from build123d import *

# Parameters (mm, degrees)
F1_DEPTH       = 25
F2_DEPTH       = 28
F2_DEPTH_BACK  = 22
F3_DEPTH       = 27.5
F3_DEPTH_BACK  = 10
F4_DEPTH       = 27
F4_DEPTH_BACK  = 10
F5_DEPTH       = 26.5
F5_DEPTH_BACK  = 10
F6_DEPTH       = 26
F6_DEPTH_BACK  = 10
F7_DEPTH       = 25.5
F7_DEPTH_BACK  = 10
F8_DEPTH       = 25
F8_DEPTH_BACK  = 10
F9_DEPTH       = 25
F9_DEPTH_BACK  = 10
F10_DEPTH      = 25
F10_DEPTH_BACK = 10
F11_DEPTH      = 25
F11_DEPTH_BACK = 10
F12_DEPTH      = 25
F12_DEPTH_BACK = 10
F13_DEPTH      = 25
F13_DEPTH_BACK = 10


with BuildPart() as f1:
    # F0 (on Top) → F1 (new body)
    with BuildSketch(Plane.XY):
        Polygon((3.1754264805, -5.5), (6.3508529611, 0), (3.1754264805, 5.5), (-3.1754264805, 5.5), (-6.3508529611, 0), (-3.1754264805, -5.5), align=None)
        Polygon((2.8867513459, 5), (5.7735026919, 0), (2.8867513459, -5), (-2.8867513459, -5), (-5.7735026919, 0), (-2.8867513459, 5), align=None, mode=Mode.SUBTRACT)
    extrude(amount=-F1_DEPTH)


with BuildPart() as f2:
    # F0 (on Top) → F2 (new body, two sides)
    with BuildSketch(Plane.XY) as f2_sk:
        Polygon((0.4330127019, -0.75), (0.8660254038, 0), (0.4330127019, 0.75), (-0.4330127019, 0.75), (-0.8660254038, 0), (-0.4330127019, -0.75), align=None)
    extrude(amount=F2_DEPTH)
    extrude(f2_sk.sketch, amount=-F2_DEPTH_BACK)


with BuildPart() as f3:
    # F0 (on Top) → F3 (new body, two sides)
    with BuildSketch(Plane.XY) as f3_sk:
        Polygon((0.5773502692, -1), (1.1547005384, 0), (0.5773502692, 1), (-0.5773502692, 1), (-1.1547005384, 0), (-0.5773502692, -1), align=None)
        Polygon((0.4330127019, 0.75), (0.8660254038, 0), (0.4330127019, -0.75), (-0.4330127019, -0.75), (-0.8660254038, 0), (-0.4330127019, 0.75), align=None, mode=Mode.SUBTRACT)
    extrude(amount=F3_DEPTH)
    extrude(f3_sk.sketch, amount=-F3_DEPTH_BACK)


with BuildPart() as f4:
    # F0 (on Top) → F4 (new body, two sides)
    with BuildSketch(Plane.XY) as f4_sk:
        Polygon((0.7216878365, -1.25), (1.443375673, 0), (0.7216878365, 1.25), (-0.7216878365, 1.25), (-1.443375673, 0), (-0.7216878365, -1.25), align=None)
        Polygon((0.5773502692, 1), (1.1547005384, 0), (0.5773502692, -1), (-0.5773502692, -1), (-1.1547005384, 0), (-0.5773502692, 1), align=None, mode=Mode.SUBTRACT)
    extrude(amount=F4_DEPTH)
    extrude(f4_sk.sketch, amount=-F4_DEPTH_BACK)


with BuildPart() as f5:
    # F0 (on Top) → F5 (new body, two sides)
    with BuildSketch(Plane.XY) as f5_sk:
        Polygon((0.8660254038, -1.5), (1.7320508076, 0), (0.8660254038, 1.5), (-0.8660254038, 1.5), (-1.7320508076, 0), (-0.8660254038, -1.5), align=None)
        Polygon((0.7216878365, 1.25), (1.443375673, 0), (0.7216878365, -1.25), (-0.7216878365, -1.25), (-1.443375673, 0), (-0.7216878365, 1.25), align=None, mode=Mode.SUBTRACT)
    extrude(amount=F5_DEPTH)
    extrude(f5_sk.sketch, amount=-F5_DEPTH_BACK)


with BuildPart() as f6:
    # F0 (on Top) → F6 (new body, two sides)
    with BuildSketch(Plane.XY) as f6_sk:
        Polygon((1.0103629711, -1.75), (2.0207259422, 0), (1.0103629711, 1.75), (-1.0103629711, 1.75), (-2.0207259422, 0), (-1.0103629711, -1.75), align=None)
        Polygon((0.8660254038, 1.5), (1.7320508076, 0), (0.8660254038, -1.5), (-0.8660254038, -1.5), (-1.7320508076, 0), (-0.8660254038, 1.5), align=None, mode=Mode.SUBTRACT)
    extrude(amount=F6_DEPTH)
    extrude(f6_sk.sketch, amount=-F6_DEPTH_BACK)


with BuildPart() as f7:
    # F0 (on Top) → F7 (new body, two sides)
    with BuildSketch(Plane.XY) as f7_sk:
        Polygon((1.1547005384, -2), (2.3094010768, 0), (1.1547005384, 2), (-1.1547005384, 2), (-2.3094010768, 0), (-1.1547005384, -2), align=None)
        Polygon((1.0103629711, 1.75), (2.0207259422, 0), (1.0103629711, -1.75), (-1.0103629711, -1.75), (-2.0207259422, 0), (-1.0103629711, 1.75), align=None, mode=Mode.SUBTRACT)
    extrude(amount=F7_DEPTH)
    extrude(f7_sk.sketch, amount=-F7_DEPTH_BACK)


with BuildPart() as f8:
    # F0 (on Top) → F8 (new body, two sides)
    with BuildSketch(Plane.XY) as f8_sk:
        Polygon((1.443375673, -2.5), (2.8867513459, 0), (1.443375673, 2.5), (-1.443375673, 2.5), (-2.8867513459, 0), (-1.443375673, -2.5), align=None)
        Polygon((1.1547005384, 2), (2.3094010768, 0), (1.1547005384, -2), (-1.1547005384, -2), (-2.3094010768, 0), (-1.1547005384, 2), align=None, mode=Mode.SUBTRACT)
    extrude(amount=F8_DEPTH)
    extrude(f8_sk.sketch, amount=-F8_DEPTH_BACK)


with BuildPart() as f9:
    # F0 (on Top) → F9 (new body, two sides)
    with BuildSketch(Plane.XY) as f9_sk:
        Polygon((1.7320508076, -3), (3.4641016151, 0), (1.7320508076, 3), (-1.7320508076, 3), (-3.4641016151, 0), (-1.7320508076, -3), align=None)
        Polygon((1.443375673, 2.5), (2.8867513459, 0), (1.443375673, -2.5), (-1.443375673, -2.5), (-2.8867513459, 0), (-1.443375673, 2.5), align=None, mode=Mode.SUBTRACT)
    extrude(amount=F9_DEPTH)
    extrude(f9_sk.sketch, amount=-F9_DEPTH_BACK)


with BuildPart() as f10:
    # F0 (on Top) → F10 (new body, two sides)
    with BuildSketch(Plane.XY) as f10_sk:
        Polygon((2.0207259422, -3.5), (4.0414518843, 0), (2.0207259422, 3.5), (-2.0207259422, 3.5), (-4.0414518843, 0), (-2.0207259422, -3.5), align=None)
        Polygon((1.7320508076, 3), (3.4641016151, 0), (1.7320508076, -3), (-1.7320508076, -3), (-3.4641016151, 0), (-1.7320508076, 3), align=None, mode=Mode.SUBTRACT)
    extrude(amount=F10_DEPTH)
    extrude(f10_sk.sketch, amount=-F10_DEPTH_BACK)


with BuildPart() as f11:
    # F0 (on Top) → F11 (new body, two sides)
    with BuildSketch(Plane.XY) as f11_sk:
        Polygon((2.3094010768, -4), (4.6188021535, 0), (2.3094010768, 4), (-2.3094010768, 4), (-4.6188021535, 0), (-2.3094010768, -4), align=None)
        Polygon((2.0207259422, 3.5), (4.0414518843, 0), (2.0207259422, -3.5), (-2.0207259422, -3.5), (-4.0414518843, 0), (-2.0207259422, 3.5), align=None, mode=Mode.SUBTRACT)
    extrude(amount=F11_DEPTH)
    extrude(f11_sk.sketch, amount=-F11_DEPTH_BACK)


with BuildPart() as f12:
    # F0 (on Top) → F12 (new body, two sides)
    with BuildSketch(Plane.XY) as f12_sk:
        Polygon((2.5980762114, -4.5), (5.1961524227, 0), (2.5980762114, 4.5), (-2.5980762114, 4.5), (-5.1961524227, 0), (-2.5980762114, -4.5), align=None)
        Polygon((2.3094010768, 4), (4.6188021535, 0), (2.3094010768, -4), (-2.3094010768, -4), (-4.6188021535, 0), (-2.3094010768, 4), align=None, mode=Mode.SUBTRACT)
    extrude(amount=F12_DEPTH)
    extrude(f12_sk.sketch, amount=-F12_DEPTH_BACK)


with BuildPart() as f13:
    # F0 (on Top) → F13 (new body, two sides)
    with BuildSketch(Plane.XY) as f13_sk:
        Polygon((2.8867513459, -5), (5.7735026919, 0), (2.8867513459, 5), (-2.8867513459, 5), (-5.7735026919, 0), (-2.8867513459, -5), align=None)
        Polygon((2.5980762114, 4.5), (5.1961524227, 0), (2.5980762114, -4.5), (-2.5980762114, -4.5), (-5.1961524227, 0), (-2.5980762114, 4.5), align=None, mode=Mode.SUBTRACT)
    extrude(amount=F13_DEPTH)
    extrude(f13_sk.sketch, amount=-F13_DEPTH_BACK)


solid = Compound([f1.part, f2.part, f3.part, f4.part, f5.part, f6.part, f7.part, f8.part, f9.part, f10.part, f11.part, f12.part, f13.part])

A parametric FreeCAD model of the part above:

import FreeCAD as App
import Part
import Sketcher
Q = App.Units.Quantity

doc = App.newDocument("Part")
body = doc.addObject("PartDesign::Body", "Body")

sketch1 = body.newObject("Sketcher::SketchObject", "Sketch")
sketch1.AttachmentSupport = (doc.getObject("XY_Plane"), [""])
sketch1.MapMode = "FlatFace"
sketch1.addGeometry([
    Part.LineSegment(App.Vector(3, -6, 0), App.Vector(6, 0, 0)),
    Part.LineSegment(App.Vector(6, 0, 0), App.Vector(3, 6, 0)),
    Part.LineSegment(App.Vector(3, 6, 0), App.Vector(-3, 6, 0)),
    Part.LineSegment(App.Vector(-3, 6, 0), App.Vector(-6, 0, 0)),
    Part.LineSegment(App.Vector(-6, 0, 0), App.Vector(-3, -6, 0)),
    Part.LineSegment(App.Vector(-3, -6, 0), App.Vector(3, -6, 0)),
    Part.LineSegment(App.Vector(-3, 5, 0), App.Vector(3, 5, 0)),
    Part.LineSegment(App.Vector(3, 5, 0), App.Vector(6, 0, 0)),
    Part.LineSegment(App.Vector(6, 0, 0), App.Vector(3, -5, 0)),
    Part.LineSegment(App.Vector(3, -5, 0), App.Vector(-3, -5, 0)),
    Part.LineSegment(App.Vector(-3, -5, 0), App.Vector(-6, 0, 0)),
    Part.LineSegment(App.Vector(-6, 0, 0), App.Vector(-3, 5, 0)),
], False)
sketch1.addConstraint([
    Sketcher.Constraint("Coincident", 0, 2, 1, 1),
    Sketcher.Constraint("Coincident", 1, 2, 2, 1),
    Sketcher.Constraint("Coincident", 2, 2, 3, 1),
    Sketcher.Constraint("Coincident", 3, 2, 4, 1),
    Sketcher.Constraint("Coincident", 4, 2, 5, 1),
    Sketcher.Constraint("Coincident", 5, 2, 0, 1),
    Sketcher.Constraint("Coincident", 6, 2, 7, 1),
    Sketcher.Constraint("Coincident", 7, 2, 8, 1),
    Sketcher.Constraint("Coincident", 8, 2, 9, 1),
    Sketcher.Constraint("Coincident", 9, 2, 10, 1),
    Sketcher.Constraint("Coincident", 10, 2, 11, 1),
    Sketcher.Constraint("Coincident", 11, 2, 6, 1),
    Sketcher.Constraint("Horizontal", 2),
    Sketcher.Constraint("Horizontal", 5),
    Sketcher.Constraint("Horizontal", 6),
    Sketcher.Constraint("Horizontal", 9),
    Sketcher.Constraint("Symmetric", 0, 2, 3, 2, -1, 1),
    Sketcher.Constraint("Symmetric", 1, 2, 4, 2, -1, 1),
    Sketcher.Constraint("Symmetric", 6, 2, 9, 2, -1, 1),
    Sketcher.Constraint("Symmetric", 7, 2, 10, 2, -1, 1),
    Sketcher.Constraint("PointOnObject", 0, 2, -1),
    Sketcher.Constraint("PointOnObject", 7, 2, -1),
    Sketcher.Constraint("Parallel", 0, 3),
    Sketcher.Constraint("Parallel", 4, 7),
    Sketcher.Constraint("Parallel", 3, 8),
    Sketcher.Constraint("Parallel", 8, 11),
    Sketcher.Constraint("Vertical", 2, 2, 4, 2),
    Sketcher.Constraint("Angle", 0, Q("60 deg")),
    Sketcher.Constraint("DistanceY", -1, 1, 6, 2, 5.0),
    Sketcher.Constraint("DistanceY", 4, 2, 2, 2, 11.0),
    Sketcher.Constraint("DistanceX", 6, 2, 0, 2, 3.464102),
    Sketcher.Constraint("DistanceX", 2, 2, 2, 1, 6.350853),
])
pad1 = body.newObject("PartDesign::Pad", "Pad")
pad1.Profile = sketch1
pad1.Length = 25
pad1.Reversed = True
body2 = doc.addObject("PartDesign::Body", "Body001")

sketch2 = body2.newObject("Sketcher::SketchObject", "Sketch001")
sketch2.AttachmentSupport = (doc.getObject("XY_Plane001"), [""])
sketch2.MapMode = "FlatFace"
sketch2.addGeometry([
    Part.LineSegment(App.Vector(0.4, -0.8, 0), App.Vector(0.9, 0, 0)),
    Part.LineSegment(App.Vector(0.9, 0, 0), App.Vector(0.4, 0.8, 0)),
    Part.LineSegment(App.Vector(0.4, 0.8, 0), App.Vector(-0.4, 0.8, 0)),
    Part.LineSegment(App.Vector(-0.4, 0.8, 0), App.Vector(-0.9, 0, 0)),
    Part.LineSegment(App.Vector(-0.9, 0, 0), App.Vector(-0.4, -0.8, 0)),
    Part.LineSegment(App.Vector(-0.4, -0.8, 0), App.Vector(0.4, -0.8, 0)),
], False)
sketch2.addConstraint([
    Sketcher.Constraint("Coincident", 0, 2, 1, 1),
    Sketcher.Constraint("Coincident", 1, 2, 2, 1),
    Sketcher.Constraint("Coincident", 2, 2, 3, 1),
    Sketcher.Constraint("Coincident", 3, 2, 4, 1),
    Sketcher.Constraint("Coincident", 4, 2, 5, 1),
    Sketcher.Constraint("Coincident", 5, 2, 0, 1),
    Sketcher.Constraint("Horizontal", 2),
    Sketcher.Constraint("Horizontal", 5),
    Sketcher.Constraint("Symmetric", 0, 2, 3, 2, -1, 1),
    Sketcher.Constraint("Symmetric", 1, 2, 4, 2, -1, 1),
    Sketcher.Constraint("PointOnObject", 0, 2, -1),
    Sketcher.Constraint("Parallel", 0, 3),
    Sketcher.Constraint("Vertical", 2, 2, 4, 2),
    Sketcher.Constraint("Angle", 0, Q("60 deg")),
    Sketcher.Constraint("DistanceY", 4, 2, 2, 2, 1.5),
    Sketcher.Constraint("DistanceX", 2, 2, 2, 1, 0.866025),
])
pad2 = body2.newObject("PartDesign::Pad", "Pad001")
pad2.Profile = sketch2
pad2.Type = "TwoLengths"
pad2.Length = 28
pad2.Length2 = 22
body3 = doc.addObject("PartDesign::Body", "Body002")

sketch3 = body3.newObject("Sketcher::SketchObject", "Sketch002")
sketch3.AttachmentSupport = (doc.getObject("XY_Plane002"), [""])
sketch3.MapMode = "FlatFace"
sketch3.addGeometry([
    Part.LineSegment(App.Vector(0.6, -1, 0), App.Vector(1.2, 0, 0)),
    Part.LineSegment(App.Vector(1.2, 0, 0), App.Vector(0.6, 1, 0)),
    Part.LineSegment(App.Vector(0.6, 1, 0), App.Vector(-0.6, 1, 0)),
    Part.LineSegment(App.Vector(-0.6, 1, 0), App.Vector(-1.2, 0, 0)),
    Part.LineSegment(App.Vector(-1.2, 0, 0), App.Vector(-0.6, -1, 0)),
    Part.LineSegment(App.Vector(-0.6, -1, 0), App.Vector(0.6, -1, 0)),
    Part.LineSegment(App.Vector(-0.4, 0.8, 0), App.Vector(0.4, 0.8, 0)),
    Part.LineSegment(App.Vector(0.4, 0.8, 0), App.Vector(0.9, 0, 0)),
    Part.LineSegment(App.Vector(0.9, 0, 0), App.Vector(0.4, -0.8, 0)),
    Part.LineSegment(App.Vector(0.4, -0.8, 0), App.Vector(-0.4, -0.8, 0)),
    Part.LineSegment(App.Vector(-0.4, -0.8, 0), App.Vector(-0.9, 0, 0)),
    Part.LineSegment(App.Vector(-0.9, 0, 0), App.Vector(-0.4, 0.8, 0)),
], False)
sketch3.addConstraint([
    Sketcher.Constraint("Coincident", 0, 2, 1, 1),
    Sketcher.Constraint("Coincident", 1, 2, 2, 1),
    Sketcher.Constraint("Coincident", 2, 2, 3, 1),
    Sketcher.Constraint("Coincident", 3, 2, 4, 1),
    Sketcher.Constraint("Coincident", 4, 2, 5, 1),
    Sketcher.Constraint("Coincident", 5, 2, 0, 1),
    Sketcher.Constraint("Coincident", 6, 2, 7, 1),
    Sketcher.Constraint("Coincident", 7, 2, 8, 1),
    Sketcher.Constraint("Coincident", 8, 2, 9, 1),
    Sketcher.Constraint("Coincident", 9, 2, 10, 1),
    Sketcher.Constraint("Coincident", 10, 2, 11, 1),
    Sketcher.Constraint("Coincident", 11, 2, 6, 1),
    Sketcher.Constraint("Horizontal", 2),
    Sketcher.Constraint("Horizontal", 5),
    Sketcher.Constraint("Horizontal", 6),
    Sketcher.Constraint("Horizontal", 9),
    Sketcher.Constraint("Symmetric", 0, 2, 3, 2, -1, 1),
    Sketcher.Constraint("Symmetric", 1, 2, 4, 2, -1, 1),
    Sketcher.Constraint("Symmetric", 6, 2, 9, 2, -1, 1),
    Sketcher.Constraint("Symmetric", 7, 2, 10, 2, -1, 1),
    Sketcher.Constraint("PointOnObject", 0, 2, -1),
    Sketcher.Constraint("PointOnObject", 7, 2, -1),
    Sketcher.Constraint("Parallel", 0, 3),
    Sketcher.Constraint("Parallel", 4, 7),
    Sketcher.Constraint("Parallel", 3, 8),
    Sketcher.Constraint("Parallel", 8, 11),
    Sketcher.Constraint("Vertical", 2, 2, 4, 2),
    Sketcher.Constraint("Angle", 0, Q("60 deg")),
    Sketcher.Constraint("DistanceY", -1, 1, 1, 2, 1.0),
    Sketcher.Constraint("DistanceY", 8, 2, 6, 2, 1.5),
    Sketcher.Constraint("DistanceX", 2, 2, 2, 1, 1.154701),
    Sketcher.Constraint("DistanceX", 6, 1, 6, 2, 0.866025),
])
pad3 = body3.newObject("PartDesign::Pad", "Pad002")
pad3.Profile = sketch3
pad3.Type = "TwoLengths"
pad3.Length = 27.5
pad3.Length2 = 10
body4 = doc.addObject("PartDesign::Body", "Body003")

sketch4 = body4.newObject("Sketcher::SketchObject", "Sketch003")
sketch4.AttachmentSupport = (doc.getObject("XY_Plane003"), [""])
sketch4.MapMode = "FlatFace"
sketch4.addGeometry([
    Part.LineSegment(App.Vector(0.7, -1.2, 0), App.Vector(1.4, 0, 0)),
    Part.LineSegment(App.Vector(1.4, 0, 0), App.Vector(0.7, 1.2, 0)),
    Part.LineSegment(App.Vector(0.7, 1.2, 0), App.Vector(-0.7, 1.2, 0)),
    Part.LineSegment(App.Vector(-0.7, 1.2, 0), App.Vector(-1.4, 0, 0)),
    Part.LineSegment(App.Vector(-1.4, 0, 0), App.Vector(-0.7, -1.2, 0)),
    Part.LineSegment(App.Vector(-0.7, -1.2, 0), App.Vector(0.7, -1.2, 0)),
    Part.LineSegment(App.Vector(-0.6, 1, 0), App.Vector(0.6, 1, 0)),
    Part.LineSegment(App.Vector(0.6, 1, 0), App.Vector(1.2, 0, 0)),
    Part.LineSegment(App.Vector(1.2, 0, 0), App.Vector(0.6, -1, 0)),
    Part.LineSegment(App.Vector(0.6, -1, 0), App.Vector(-0.6, -1, 0)),
    Part.LineSegment(App.Vector(-0.6, -1, 0), App.Vector(-1.2, 0, 0)),
    Part.LineSegment(App.Vector(-1.2, 0, 0), App.Vector(-0.6, 1, 0)),
], False)
sketch4.addConstraint([
    Sketcher.Constraint("Coincident", 0, 2, 1, 1),
    Sketcher.Constraint("Coincident", 1, 2, 2, 1),
    Sketcher.Constraint("Coincident", 2, 2, 3, 1),
    Sketcher.Constraint("Coincident", 3, 2, 4, 1),
    Sketcher.Constraint("Coincident", 4, 2, 5, 1),
    Sketcher.Constraint("Coincident", 5, 2, 0, 1),
    Sketcher.Constraint("Coincident", 6, 2, 7, 1),
    Sketcher.Constraint("Coincident", 7, 2, 8, 1),
    Sketcher.Constraint("Coincident", 8, 2, 9, 1),
    Sketcher.Constraint("Coincident", 9, 2, 10, 1),
    Sketcher.Constraint("Coincident", 10, 2, 11, 1),
    Sketcher.Constraint("Coincident", 11, 2, 6, 1),
    Sketcher.Constraint("Horizontal", 2),
    Sketcher.Constraint("Horizontal", 5),
    Sketcher.Constraint("Horizontal", 6),
    Sketcher.Constraint("Horizontal", 9),
    Sketcher.Constraint("Symmetric", 0, 2, 3, 2, -1, 1),
    Sketcher.Constraint("Symmetric", 1, 2, 4, 2, -1, 1),
    Sketcher.Constraint("Symmetric", 6, 2, 9, 2, -1, 1),
    Sketcher.Constraint("Symmetric", 7, 2, 10, 2, -1, 1),
    Sketcher.Constraint("PointOnObject", 0, 2, -1),
    Sketcher.Constraint("PointOnObject", 7, 2, -1),
    Sketcher.Constraint("Parallel", 0, 3),
    Sketcher.Constraint("Parallel", 4, 7),
    Sketcher.Constraint("Parallel", 3, 8),
    Sketcher.Constraint("Parallel", 8, 11),
    Sketcher.Constraint("Vertical", 2, 2, 4, 2),
    Sketcher.Constraint("Angle", 0, Q("60 deg")),
    Sketcher.Constraint("DistanceY", -1, 1, 6, 2, 1.0),
    Sketcher.Constraint("DistanceY", 4, 2, 2, 2, 2.5),
    Sketcher.Constraint("DistanceX", 6, 1, 6, 2, 1.154701),
    Sketcher.Constraint("DistanceX", 2, 2, 2, 1, 1.443376),
])
pad4 = body4.newObject("PartDesign::Pad", "Pad003")
pad4.Profile = sketch4
pad4.Type = "TwoLengths"
pad4.Length = 27
pad4.Length2 = 10
body5 = doc.addObject("PartDesign::Body", "Body004")

sketch5 = body5.newObject("Sketcher::SketchObject", "Sketch004")
sketch5.AttachmentSupport = (doc.getObject("XY_Plane004"), [""])
sketch5.MapMode = "FlatFace"
sketch5.addGeometry([
    Part.LineSegment(App.Vector(0.9, -1.5, 0), App.Vector(1.7, 0, 0)),
    Part.LineSegment(App.Vector(1.7, 0, 0), App.Vector(0.9, 1.5, 0)),
    Part.LineSegment(App.Vector(0.9, 1.5, 0), App.Vector(-0.9, 1.5, 0)),
    Part.LineSegment(App.Vector(-0.9, 1.5, 0), App.Vector(-1.7, 0, 0)),
    Part.LineSegment(App.Vector(-1.7, 0, 0), App.Vector(-0.9, -1.5, 0)),
    Part.LineSegment(App.Vector(-0.9, -1.5, 0), App.Vector(0.9, -1.5, 0)),
    Part.LineSegment(App.Vector(-0.7, 1.2, 0), App.Vector(0.7, 1.2, 0)),
    Part.LineSegment(App.Vector(0.7, 1.2, 0), App.Vector(1.4, 0, 0)),
    Part.LineSegment(App.Vector(1.4, 0, 0), App.Vector(0.7, -1.2, 0)),
    Part.LineSegment(App.Vector(0.7, -1.2, 0), App.Vector(-0.7, -1.2, 0)),
    Part.LineSegment(App.Vector(-0.7, -1.2, 0), App.Vector(-1.4, 0, 0)),
    Part.LineSegment(App.Vector(-1.4, 0, 0), App.Vector(-0.7, 1.2, 0)),
], False)
sketch5.addConstraint([
    Sketcher.Constraint("Coincident", 0, 2, 1, 1),
    Sketcher.Constraint("Coincident", 1, 2, 2, 1),
    Sketcher.Constraint("Coincident", 2, 2, 3, 1),
    Sketcher.Constraint("Coincident", 3, 2, 4, 1),
    Sketcher.Constraint("Coincident", 4, 2, 5, 1),
    Sketcher.Constraint("Coincident", 5, 2, 0, 1),
    Sketcher.Constraint("Coincident", 6, 2, 7, 1),
    Sketcher.Constraint("Coincident", 7, 2, 8, 1),
    Sketcher.Constraint("Coincident", 8, 2, 9, 1),
    Sketcher.Constraint("Coincident", 9, 2, 10, 1),
    Sketcher.Constraint("Coincident", 10, 2, 11, 1),
    Sketcher.Constraint("Coincident", 11, 2, 6, 1),
    Sketcher.Constraint("Horizontal", 2),
    Sketcher.Constraint("Horizontal", 5),
    Sketcher.Constraint("Horizontal", 6),
    Sketcher.Constraint("Horizontal", 9),
    Sketcher.Constraint("Symmetric", 0, 2, 3, 2, -1, 1),
    Sketcher.Constraint("Symmetric", 1, 2, 4, 2, -1, 1),
    Sketcher.Constraint("Symmetric", 6, 2, 9, 2, -1, 1),
    Sketcher.Constraint("Symmetric", 7, 2, 10, 2, -1, 1),
    Sketcher.Constraint("PointOnObject", 0, 2, -1),
    Sketcher.Constraint("PointOnObject", 7, 2, -1),
    Sketcher.Constraint("Parallel", 0, 3),
    Sketcher.Constraint("Parallel", 4, 7),
    Sketcher.Constraint("Parallel", 3, 8),
    Sketcher.Constraint("Parallel", 8, 11),
    Sketcher.Constraint("Vertical", 2, 2, 4, 2),
    Sketcher.Constraint("Angle", 0, Q("60 deg")),
    Sketcher.Constraint("DistanceY", 4, 2, 2, 2, 3.0),
    Sketcher.Constraint("DistanceY", 8, 2, 6, 2, 2.5),
    Sketcher.Constraint("DistanceX", 2, 2, 2, 1, 1.732051),
    Sketcher.Constraint("DistanceX", 2, 2, 7, 2, 2.309401),
])
pad5 = body5.newObject("PartDesign::Pad", "Pad004")
pad5.Profile = sketch5
pad5.Type = "TwoLengths"
pad5.Length = 26.5
pad5.Length2 = 10
body6 = doc.addObject("PartDesign::Body", "Body005")

sketch6 = body6.newObject("Sketcher::SketchObject", "Sketch005")
sketch6.AttachmentSupport = (doc.getObject("XY_Plane005"), [""])
sketch6.MapMode = "FlatFace"
sketch6.addGeometry([
    Part.LineSegment(App.Vector(1, -1.8, 0), App.Vector(2, 0, 0)),
    Part.LineSegment(App.Vector(2, 0, 0), App.Vector(1, 1.8, 0)),
    Part.LineSegment(App.Vector(1, 1.8, 0), App.Vector(-1, 1.8, 0)),
    Part.LineSegment(App.Vector(-1, 1.8, 0), App.Vector(-2, 0, 0)),
    Part.LineSegment(App.Vector(-2, 0, 0), App.Vector(-1, -1.8, 0)),
    Part.LineSegment(App.Vector(-1, -1.8, 0), App.Vector(1, -1.8, 0)),
    Part.LineSegment(App.Vector(-0.9, 1.5, 0), App.Vector(0.9, 1.5, 0)),
    Part.LineSegment(App.Vector(0.9, 1.5, 0), App.Vector(1.7, 0, 0)),
    Part.LineSegment(App.Vector(1.7, 0, 0), App.Vector(0.9, -1.5, 0)),
    Part.LineSegment(App.Vector(0.9, -1.5, 0), App.Vector(-0.9, -1.5, 0)),
    Part.LineSegment(App.Vector(-0.9, -1.5, 0), App.Vector(-1.7, 0, 0)),
    Part.LineSegment(App.Vector(-1.7, 0, 0), App.Vector(-0.9, 1.5, 0)),
], False)
sketch6.addConstraint([
    Sketcher.Constraint("Coincident", 0, 2, 1, 1),
    Sketcher.Constraint("Coincident", 1, 2, 2, 1),
    Sketcher.Constraint("Coincident", 2, 2, 3, 1),
    Sketcher.Constraint("Coincident", 3, 2, 4, 1),
    Sketcher.Constraint("Coincident", 4, 2, 5, 1),
    Sketcher.Constraint("Coincident", 5, 2, 0, 1),
    Sketcher.Constraint("Coincident", 6, 2, 7, 1),
    Sketcher.Constraint("Coincident", 7, 2, 8, 1),
    Sketcher.Constraint("Coincident", 8, 2, 9, 1),
    Sketcher.Constraint("Coincident", 9, 2, 10, 1),
    Sketcher.Constraint("Coincident", 10, 2, 11, 1),
    Sketcher.Constraint("Coincident", 11, 2, 6, 1),
    Sketcher.Constraint("Horizontal", 2),
    Sketcher.Constraint("Horizontal", 5),
    Sketcher.Constraint("Horizontal", 6),
    Sketcher.Constraint("Horizontal", 9),
    Sketcher.Constraint("Symmetric", 0, 2, 3, 2, -1, 1),
    Sketcher.Constraint("Symmetric", 1, 2, 4, 2, -1, 1),
    Sketcher.Constraint("Symmetric", 6, 2, 9, 2, -1, 1),
    Sketcher.Constraint("Symmetric", 7, 2, 10, 2, -1, 1),
    Sketcher.Constraint("PointOnObject", 0, 2, -1),
    Sketcher.Constraint("PointOnObject", 7, 2, -1),
    Sketcher.Constraint("Parallel", 0, 3),
    Sketcher.Constraint("Parallel", 4, 7),
    Sketcher.Constraint("Parallel", 3, 8),
    Sketcher.Constraint("Parallel", 8, 11),
    Sketcher.Constraint("Vertical", 2, 2, 4, 2),
    Sketcher.Constraint("Angle", 0, Q("60 deg")),
    Sketcher.Constraint("DistanceY", 8, 2, 6, 2, 3.0),
    Sketcher.Constraint("DistanceY", 4, 2, 2, 2, 3.5),
    Sketcher.Constraint("DistanceX", 6, 1, 6, 2, 1.732051),
    Sketcher.Constraint("DistanceX", 6, 2, 0, 2, 1.154701),
])
pad6 = body6.newObject("PartDesign::Pad", "Pad005")
pad6.Profile = sketch6
pad6.Type = "TwoLengths"
pad6.Length = 26
pad6.Length2 = 10
body7 = doc.addObject("PartDesign::Body", "Body006")

sketch7 = body7.newObject("Sketcher::SketchObject", "Sketch006")
sketch7.AttachmentSupport = (doc.getObject("XY_Plane006"), [""])
sketch7.MapMode = "FlatFace"
sketch7.addGeometry([
    Part.LineSegment(App.Vector(1.2, -2, 0), App.Vector(2.3, 0, 0)),
    Part.LineSegment(App.Vector(2.3, 0, 0), App.Vector(1.2, 2, 0)),
    Part.LineSegment(App.Vector(1.2, 2, 0), App.Vector(-1.2, 2, 0)),
    Part.LineSegment(App.Vector(-1.2, 2, 0), App.Vector(-2.3, 0, 0)),
    Part.LineSegment(App.Vector(-2.3, 0, 0), App.Vector(-1.2, -2, 0)),
    Part.LineSegment(App.Vector(-1.2, -2, 0), App.Vector(1.2, -2, 0)),
    Part.LineSegment(App.Vector(-1, 1.8, 0), App.Vector(1, 1.8, 0)),
    Part.LineSegment(App.Vector(1, 1.8, 0), App.Vector(2, 0, 0)),
    Part.LineSegment(App.Vector(2, 0, 0), App.Vector(1, -1.8, 0)),
    Part.LineSegment(App.Vector(1, -1.8, 0), App.Vector(-1, -1.8, 0)),
    Part.LineSegment(App.Vector(-1, -1.8, 0), App.Vector(-2, 0, 0)),
    Part.LineSegment(App.Vector(-2, 0, 0), App.Vector(-1, 1.8, 0)),
], False)
sketch7.addConstraint([
    Sketcher.Constraint("Coincident", 0, 2, 1, 1),
    Sketcher.Constraint("Coincident", 1, 2, 2, 1),
    Sketcher.Constraint("Coincident", 2, 2, 3, 1),
    Sketcher.Constraint("Coincident", 3, 2, 4, 1),
    Sketcher.Constraint("Coincident", 4, 2, 5, 1),
    Sketcher.Constraint("Coincident", 5, 2, 0, 1),
    Sketcher.Constraint("Coincident", 6, 2, 7, 1),
    Sketcher.Constraint("Coincident", 7, 2, 8, 1),
    Sketcher.Constraint("Coincident", 8, 2, 9, 1),
    Sketcher.Constraint("Coincident", 9, 2, 10, 1),
    Sketcher.Constraint("Coincident", 10, 2, 11, 1),
    Sketcher.Constraint("Coincident", 11, 2, 6, 1),
    Sketcher.Constraint("Horizontal", 2),
    Sketcher.Constraint("Horizontal", 5),
    Sketcher.Constraint("Horizontal", 6),
    Sketcher.Constraint("Horizontal", 9),
    Sketcher.Constraint("Symmetric", 0, 2, 3, 2, -1, 1),
    Sketcher.Constraint("Symmetric", 1, 2, 4, 2, -1, 1),
    Sketcher.Constraint("Symmetric", 6, 2, 9, 2, -1, 1),
    Sketcher.Constraint("Symmetric", 7, 2, 10, 2, -1, 1),
    Sketcher.Constraint("PointOnObject", 0, 2, -1),
    Sketcher.Constraint("PointOnObject", 7, 2, -1),
    Sketcher.Constraint("Parallel", 0, 3),
    Sketcher.Constraint("Parallel", 4, 7),
    Sketcher.Constraint("Parallel", 3, 8),
    Sketcher.Constraint("Parallel", 8, 11),
    Sketcher.Constraint("Vertical", 2, 2, 4, 2),
    Sketcher.Constraint("Angle", 0, Q("60 deg")),
    Sketcher.Constraint("DistanceY", -1, 1, 1, 2, 2.0),
    Sketcher.Constraint("DistanceY", 8, 2, 6, 2, 3.5),
    Sketcher.Constraint("DistanceX", 2, 2, 2, 1, 2.309401),
    Sketcher.Constraint("DistanceX", 6, 1, 6, 2, 2.020726),
])
pad7 = body7.newObject("PartDesign::Pad", "Pad006")
pad7.Profile = sketch7
pad7.Type = "TwoLengths"
pad7.Length = 25.5
pad7.Length2 = 10
body8 = doc.addObject("PartDesign::Body", "Body007")

sketch8 = body8.newObject("Sketcher::SketchObject", "Sketch007")
sketch8.AttachmentSupport = (doc.getObject("XY_Plane007"), [""])
sketch8.MapMode = "FlatFace"
sketch8.addGeometry([
    Part.LineSegment(App.Vector(1.4, -2.5, 0), App.Vector(2.9, 0, 0)),
    Part.LineSegment(App.Vector(2.9, 0, 0), App.Vector(1.4, 2.5, 0)),
    Part.LineSegment(App.Vector(1.4, 2.5, 0), App.Vector(-1.4, 2.5, 0)),
    Part.LineSegment(App.Vector(-1.4, 2.5, 0), App.Vector(-2.9, 0, 0)),
    Part.LineSegment(App.Vector(-2.9, 0, 0), App.Vector(-1.4, -2.5, 0)),
    Part.LineSegment(App.Vector(-1.4, -2.5, 0), App.Vector(1.4, -2.5, 0)),
    Part.LineSegment(App.Vector(-1.2, 2, 0), App.Vector(1.2, 2, 0)),
    Part.LineSegment(App.Vector(1.2, 2, 0), App.Vector(2.3, 0, 0)),
    Part.LineSegment(App.Vector(2.3, 0, 0), App.Vector(1.2, -2, 0)),
    Part.LineSegment(App.Vector(1.2, -2, 0), App.Vector(-1.2, -2, 0)),
    Part.LineSegment(App.Vector(-1.2, -2, 0), App.Vector(-2.3, 0, 0)),
    Part.LineSegment(App.Vector(-2.3, 0, 0), App.Vector(-1.2, 2, 0)),
], False)
sketch8.addConstraint([
    Sketcher.Constraint("Coincident", 0, 2, 1, 1),
    Sketcher.Constraint("Coincident", 1, 2, 2, 1),
    Sketcher.Constraint("Coincident", 2, 2, 3, 1),
    Sketcher.Constraint("Coincident", 3, 2, 4, 1),
    Sketcher.Constraint("Coincident", 4, 2, 5, 1),
    Sketcher.Constraint("Coincident", 5, 2, 0, 1),
    Sketcher.Constraint("Coincident", 6, 2, 7, 1),
    Sketcher.Constraint("Coincident", 7, 2, 8, 1),
    Sketcher.Constraint("Coincident", 8, 2, 9, 1),
    Sketcher.Constraint("Coincident", 9, 2, 10, 1),
    Sketcher.Constraint("Coincident", 10, 2, 11, 1),
    Sketcher.Constraint("Coincident", 11, 2, 6, 1),
    Sketcher.Constraint("Horizontal", 2),
    Sketcher.Constraint("Horizontal", 5),
    Sketcher.Constraint("Horizontal", 6),
    Sketcher.Constraint("Horizontal", 9),
    Sketcher.Constraint("Symmetric", 0, 2, 3, 2, -1, 1),
    Sketcher.Constraint("Symmetric", 1, 2, 4, 2, -1, 1),
    Sketcher.Constraint("Symmetric", 6, 2, 9, 2, -1, 1),
    Sketcher.Constraint("Symmetric", 7, 2, 10, 2, -1, 1),
    Sketcher.Constraint("PointOnObject", 0, 2, -1),
    Sketcher.Constraint("PointOnObject", 7, 2, -1),
    Sketcher.Constraint("Parallel", 0, 3),
    Sketcher.Constraint("Parallel", 4, 7),
    Sketcher.Constraint("Parallel", 3, 8),
    Sketcher.Constraint("Parallel", 8, 11),
    Sketcher.Constraint("Vertical", 2, 2, 4, 2),
    Sketcher.Constraint("Angle", 0, Q("60 deg")),
    Sketcher.Constraint("DistanceY", -1, 1, 6, 2, 2.0),
    Sketcher.Constraint("DistanceY", 4, 2, 2, 2, 5.0),
    Sketcher.Constraint("DistanceX", 6, 1, 6, 2, 2.309401),
    Sketcher.Constraint("DistanceX", 2, 2, 2, 1, 2.886751),
])
pad8 = body8.newObject("PartDesign::Pad", "Pad007")
pad8.Profile = sketch8
pad8.Type = "TwoLengths"
pad8.Length = 25
pad8.Length2 = 10
body9 = doc.addObject("PartDesign::Body", "Body008")

sketch9 = body9.newObject("Sketcher::SketchObject", "Sketch008")
sketch9.AttachmentSupport = (doc.getObject("XY_Plane008"), [""])
sketch9.MapMode = "FlatFace"
sketch9.addGeometry([
    Part.LineSegment(App.Vector(1.7, -3, 0), App.Vector(3.5, 0, 0)),
    Part.LineSegment(App.Vector(3.5, 0, 0), App.Vector(1.7, 3, 0)),
    Part.LineSegment(App.Vector(1.7, 3, 0), App.Vector(-1.7, 3, 0)),
    Part.LineSegment(App.Vector(-1.7, 3, 0), App.Vector(-3.5, 0, 0)),
    Part.LineSegment(App.Vector(-3.5, 0, 0), App.Vector(-1.7, -3, 0)),
    Part.LineSegment(App.Vector(-1.7, -3, 0), App.Vector(1.7, -3, 0)),
    Part.LineSegment(App.Vector(-1.4, 2.5, 0), App.Vector(1.4, 2.5, 0)),
    Part.LineSegment(App.Vector(1.4, 2.5, 0), App.Vector(2.9, 0, 0)),
    Part.LineSegment(App.Vector(2.9, 0, 0), App.Vector(1.4, -2.5, 0)),
    Part.LineSegment(App.Vector(1.4, -2.5, 0), App.Vector(-1.4, -2.5, 0)),
    Part.LineSegment(App.Vector(-1.4, -2.5, 0), App.Vector(-2.9, 0, 0)),
    Part.LineSegment(App.Vector(-2.9, 0, 0), App.Vector(-1.4, 2.5, 0)),
], False)
sketch9.addConstraint([
    Sketcher.Constraint("Coincident", 0, 2, 1, 1),
    Sketcher.Constraint("Coincident", 1, 2, 2, 1),
    Sketcher.Constraint("Coincident", 2, 2, 3, 1),
    Sketcher.Constraint("Coincident", 3, 2, 4, 1),
    Sketcher.Constraint("Coincident", 4, 2, 5, 1),
    Sketcher.Constraint("Coincident", 5, 2, 0, 1),
    Sketcher.Constraint("Coincident", 6, 2, 7, 1),
    Sketcher.Constraint("Coincident", 7, 2, 8, 1),
    Sketcher.Constraint("Coincident", 8, 2, 9, 1),
    Sketcher.Constraint("Coincident", 9, 2, 10, 1),
    Sketcher.Constraint("Coincident", 10, 2, 11, 1),
    Sketcher.Constraint("Coincident", 11, 2, 6, 1),
    Sketcher.Constraint("Horizontal", 2),
    Sketcher.Constraint("Horizontal", 5),
    Sketcher.Constraint("Horizontal", 6),
    Sketcher.Constraint("Horizontal", 9),
    Sketcher.Constraint("Symmetric", 0, 2, 3, 2, -1, 1),
    Sketcher.Constraint("Symmetric", 1, 2, 4, 2, -1, 1),
    Sketcher.Constraint("Symmetric", 6, 2, 9, 2, -1, 1),
    Sketcher.Constraint("Symmetric", 7, 2, 10, 2, -1, 1),
    Sketcher.Constraint("PointOnObject", 0, 2, -1),
    Sketcher.Constraint("PointOnObject", 7, 2, -1),
    Sketcher.Constraint("Parallel", 0, 3),
    Sketcher.Constraint("Parallel", 4, 7),
    Sketcher.Constraint("Parallel", 3, 8),
    Sketcher.Constraint("Parallel", 8, 11),
    Sketcher.Constraint("Vertical", 2, 2, 4, 2),
    Sketcher.Constraint("Angle", 0, Q("60 deg")),
    Sketcher.Constraint("DistanceY", -1, 1, 1, 2, 3.0),
    Sketcher.Constraint("DistanceY", 8, 2, 6, 2, 5.0),
    Sketcher.Constraint("DistanceX", 2, 2, 2, 1, 3.464102),
    Sketcher.Constraint("DistanceX", 6, 1, 6, 2, 2.886751),
])
pad9 = body9.newObject("PartDesign::Pad", "Pad008")
pad9.Profile = sketch9
pad9.Type = "TwoLengths"
pad9.Length = 25
pad9.Length2 = 10
body10 = doc.addObject("PartDesign::Body", "Body009")

sketch10 = body10.newObject("Sketcher::SketchObject", "Sketch009")
sketch10.AttachmentSupport = (doc.getObject("XY_Plane009"), [""])
sketch10.MapMode = "FlatFace"
sketch10.addGeometry([
    Part.LineSegment(App.Vector(2, -3.5, 0), App.Vector(4, 0, 0)),
    Part.LineSegment(App.Vector(4, 0, 0), App.Vector(2, 3.5, 0)),
    Part.LineSegment(App.Vector(2, 3.5, 0), App.Vector(-2, 3.5, 0)),
    Part.LineSegment(App.Vector(-2, 3.5, 0), App.Vector(-4, 0, 0)),
    Part.LineSegment(App.Vector(-4, 0, 0), App.Vector(-2, -3.5, 0)),
    Part.LineSegment(App.Vector(-2, -3.5, 0), App.Vector(2, -3.5, 0)),
    Part.LineSegment(App.Vector(-1.7, 3, 0), App.Vector(1.7, 3, 0)),
    Part.LineSegment(App.Vector(1.7, 3, 0), App.Vector(3.5, 0, 0)),
    Part.LineSegment(App.Vector(3.5, 0, 0), App.Vector(1.7, -3, 0)),
    Part.LineSegment(App.Vector(1.7, -3, 0), App.Vector(-1.7, -3, 0)),
    Part.LineSegment(App.Vector(-1.7, -3, 0), App.Vector(-3.5, 0, 0)),
    Part.LineSegment(App.Vector(-3.5, 0, 0), App.Vector(-1.7, 3, 0)),
], False)
sketch10.addConstraint([
    Sketcher.Constraint("Coincident", 0, 2, 1, 1),
    Sketcher.Constraint("Coincident", 1, 2, 2, 1),
    Sketcher.Constraint("Coincident", 2, 2, 3, 1),
    Sketcher.Constraint("Coincident", 3, 2, 4, 1),
    Sketcher.Constraint("Coincident", 4, 2, 5, 1),
    Sketcher.Constraint("Coincident", 5, 2, 0, 1),
    Sketcher.Constraint("Coincident", 6, 2, 7, 1),
    Sketcher.Constraint("Coincident", 7, 2, 8, 1),
    Sketcher.Constraint("Coincident", 8, 2, 9, 1),
    Sketcher.Constraint("Coincident", 9, 2, 10, 1),
    Sketcher.Constraint("Coincident", 10, 2, 11, 1),
    Sketcher.Constraint("Coincident", 11, 2, 6, 1),
    Sketcher.Constraint("Horizontal", 2),
    Sketcher.Constraint("Horizontal", 5),
    Sketcher.Constraint("Horizontal", 6),
    Sketcher.Constraint("Horizontal", 9),
    Sketcher.Constraint("Symmetric", 0, 2, 3, 2, -1, 1),
    Sketcher.Constraint("Symmetric", 1, 2, 4, 2, -1, 1),
    Sketcher.Constraint("Symmetric", 6, 2, 9, 2, -1, 1),
    Sketcher.Constraint("Symmetric", 7, 2, 10, 2, -1, 1),
    Sketcher.Constraint("PointOnObject", 0, 2, -1),
    Sketcher.Constraint("PointOnObject", 7, 2, -1),
    Sketcher.Constraint("Parallel", 0, 3),
    Sketcher.Constraint("Parallel", 4, 7),
    Sketcher.Constraint("Parallel", 3, 8),
    Sketcher.Constraint("Parallel", 8, 11),
    Sketcher.Constraint("Vertical", 2, 2, 4, 2),
    Sketcher.Constraint("Angle", 0, Q("60 deg")),
    Sketcher.Constraint("DistanceY", -1, 1, 6, 2, 3.0),
    Sketcher.Constraint("DistanceY", 4, 2, 2, 2, 7.0),
    Sketcher.Constraint("DistanceX", 6, 1, 6, 2, 3.464102),
    Sketcher.Constraint("DistanceX", 2, 2, 2, 1, 4.041452),
])
pad10 = body10.newObject("PartDesign::Pad", "Pad009")
pad10.Profile = sketch10
pad10.Type = "TwoLengths"
pad10.Length = 25
pad10.Length2 = 10
body11 = doc.addObject("PartDesign::Body", "Body010")

sketch11 = body11.newObject("Sketcher::SketchObject", "Sketch010")
sketch11.AttachmentSupport = (doc.getObject("XY_Plane010"), [""])
sketch11.MapMode = "FlatFace"
sketch11.addGeometry([
    Part.LineSegment(App.Vector(2.3, -4, 0), App.Vector(4.6, 0, 0)),
    Part.LineSegment(App.Vector(4.6, 0, 0), App.Vector(2.3, 4, 0)),
    Part.LineSegment(App.Vector(2.3, 4, 0), App.Vector(-2.3, 4, 0)),
    Part.LineSegment(App.Vector(-2.3, 4, 0), App.Vector(-4.6, 0, 0)),
    Part.LineSegment(App.Vector(-4.6, 0, 0), App.Vector(-2.3, -4, 0)),
    Part.LineSegment(App.Vector(-2.3, -4, 0), App.Vector(2.3, -4, 0)),
    Part.LineSegment(App.Vector(-2, 3.5, 0), App.Vector(2, 3.5, 0)),
    Part.LineSegment(App.Vector(2, 3.5, 0), App.Vector(4, 0, 0)),
    Part.LineSegment(App.Vector(4, 0, 0), App.Vector(2, -3.5, 0)),
    Part.LineSegment(App.Vector(2, -3.5, 0), App.Vector(-2, -3.5, 0)),
    Part.LineSegment(App.Vector(-2, -3.5, 0), App.Vector(-4, 0, 0)),
    Part.LineSegment(App.Vector(-4, 0, 0), App.Vector(-2, 3.5, 0)),
], False)
sketch11.addConstraint([
    Sketcher.Constraint("Coincident", 0, 2, 1, 1),
    Sketcher.Constraint("Coincident", 1, 2, 2, 1),
    Sketcher.Constraint("Coincident", 2, 2, 3, 1),
    Sketcher.Constraint("Coincident", 3, 2, 4, 1),
    Sketcher.Constraint("Coincident", 4, 2, 5, 1),
    Sketcher.Constraint("Coincident", 5, 2, 0, 1),
    Sketcher.Constraint("Coincident", 6, 2, 7, 1),
    Sketcher.Constraint("Coincident", 7, 2, 8, 1),
    Sketcher.Constraint("Coincident", 8, 2, 9, 1),
    Sketcher.Constraint("Coincident", 9, 2, 10, 1),
    Sketcher.Constraint("Coincident", 10, 2, 11, 1),
    Sketcher.Constraint("Coincident", 11, 2, 6, 1),
    Sketcher.Constraint("Horizontal", 2),
    Sketcher.Constraint("Horizontal", 5),
    Sketcher.Constraint("Horizontal", 6),
    Sketcher.Constraint("Horizontal", 9),
    Sketcher.Constraint("Symmetric", 0, 2, 3, 2, -1, 1),
    Sketcher.Constraint("Symmetric", 1, 2, 4, 2, -1, 1),
    Sketcher.Constraint("Symmetric", 6, 2, 9, 2, -1, 1),
    Sketcher.Constraint("Symmetric", 7, 2, 10, 2, -1, 1),
    Sketcher.Constraint("PointOnObject", 0, 2, -1),
    Sketcher.Constraint("PointOnObject", 7, 2, -1),
    Sketcher.Constraint("Parallel", 0, 3),
    Sketcher.Constraint("Parallel", 4, 7),
    Sketcher.Constraint("Parallel", 3, 8),
    Sketcher.Constraint("Parallel", 8, 11),
    Sketcher.Constraint("Vertical", 2, 2, 4, 2),
    Sketcher.Constraint("Angle", 0, Q("60 deg")),
    Sketcher.Constraint("DistanceY", -1, 1, 1, 2, 4.0),
    Sketcher.Constraint("DistanceY", 8, 2, 6, 2, 7.0),
    Sketcher.Constraint("DistanceX", 6, 1, 6, 2, 4.041452),
    Sketcher.Constraint("DistanceX", -1, 1, 1, 2, 2.309401),
])
pad11 = body11.newObject("PartDesign::Pad", "Pad010")
pad11.Profile = sketch11
pad11.Type = "TwoLengths"
pad11.Length = 25
pad11.Length2 = 10
body12 = doc.addObject("PartDesign::Body", "Body011")

sketch12 = body12.newObject("Sketcher::SketchObject", "Sketch011")
sketch12.AttachmentSupport = (doc.getObject("XY_Plane011"), [""])
sketch12.MapMode = "FlatFace"
sketch12.addGeometry([
    Part.LineSegment(App.Vector(2.6, -4.5, 0), App.Vector(5.2, 0, 0)),
    Part.LineSegment(App.Vector(5.2, 0, 0), App.Vector(2.6, 4.5, 0)),
    Part.LineSegment(App.Vector(2.6, 4.5, 0), App.Vector(-2.6, 4.5, 0)),
    Part.LineSegment(App.Vector(-2.6, 4.5, 0), App.Vector(-5.2, 0, 0)),
    Part.LineSegment(App.Vector(-5.2, 0, 0), App.Vector(-2.6, -4.5, 0)),
    Part.LineSegment(App.Vector(-2.6, -4.5, 0), App.Vector(2.6, -4.5, 0)),
    Part.LineSegment(App.Vector(-2.3, 4, 0), App.Vector(2.3, 4, 0)),
    Part.LineSegment(App.Vector(2.3, 4, 0), App.Vector(4.6, 0, 0)),
    Part.LineSegment(App.Vector(4.6, 0, 0), App.Vector(2.3, -4, 0)),
    Part.LineSegment(App.Vector(2.3, -4, 0), App.Vector(-2.3, -4, 0)),
    Part.LineSegment(App.Vector(-2.3, -4, 0), App.Vector(-4.6, 0, 0)),
    Part.LineSegment(App.Vector(-4.6, 0, 0), App.Vector(-2.3, 4, 0)),
], False)
sketch12.addConstraint([
    Sketcher.Constraint("Coincident", 0, 2, 1, 1),
    Sketcher.Constraint("Coincident", 1, 2, 2, 1),
    Sketcher.Constraint("Coincident", 2, 2, 3, 1),
    Sketcher.Constraint("Coincident", 3, 2, 4, 1),
    Sketcher.Constraint("Coincident", 4, 2, 5, 1),
    Sketcher.Constraint("Coincident", 5, 2, 0, 1),
    Sketcher.Constraint("Coincident", 6, 2, 7, 1),
    Sketcher.Constraint("Coincident", 7, 2, 8, 1),
    Sketcher.Constraint("Coincident", 8, 2, 9, 1),
    Sketcher.Constraint("Coincident", 9, 2, 10, 1),
    Sketcher.Constraint("Coincident", 10, 2, 11, 1),
    Sketcher.Constraint("Coincident", 11, 2, 6, 1),
    Sketcher.Constraint("Horizontal", 2),
    Sketcher.Constraint("Horizontal", 5),
    Sketcher.Constraint("Horizontal", 6),
    Sketcher.Constraint("Horizontal", 9),
    Sketcher.Constraint("Symmetric", 0, 2, 3, 2, -1, 1),
    Sketcher.Constraint("Symmetric", 1, 2, 4, 2, -1, 1),
    Sketcher.Constraint("Symmetric", 6, 2, 9, 2, -1, 1),
    Sketcher.Constraint("Symmetric", 7, 2, 10, 2, -1, 1),
    Sketcher.Constraint("PointOnObject", 0, 2, -1),
    Sketcher.Constraint("PointOnObject", 7, 2, -1),
    Sketcher.Constraint("Parallel", 0, 3),
    Sketcher.Constraint("Parallel", 4, 7),
    Sketcher.Constraint("Parallel", 3, 8),
    Sketcher.Constraint("Parallel", 8, 11),
    Sketcher.Constraint("Vertical", 2, 2, 4, 2),
    Sketcher.Constraint("Angle", 0, Q("60 deg")),
    Sketcher.Constraint("DistanceY", -1, 1, 6, 2, 4.0),
    Sketcher.Constraint("DistanceY", 4, 2, 2, 2, 9.0),
    Sketcher.Constraint("DistanceX", -1, 1, 6, 2, 2.309401),
    Sketcher.Constraint("DistanceX", 2, 2, 2, 1, 5.196152),
])
pad12 = body12.newObject("PartDesign::Pad", "Pad011")
pad12.Profile = sketch12
pad12.Type = "TwoLengths"
pad12.Length = 25
pad12.Length2 = 10
body13 = doc.addObject("PartDesign::Body", "Body012")

sketch13 = body13.newObject("Sketcher::SketchObject", "Sketch012")
sketch13.AttachmentSupport = (doc.getObject("XY_Plane012"), [""])
sketch13.MapMode = "FlatFace"
sketch13.addGeometry([
    Part.LineSegment(App.Vector(3, -5, 0), App.Vector(6, 0, 0)),
    Part.LineSegment(App.Vector(6, 0, 0), App.Vector(3, 5, 0)),
    Part.LineSegment(App.Vector(3, 5, 0), App.Vector(-3, 5, 0)),
    Part.LineSegment(App.Vector(-3, 5, 0), App.Vector(-6, 0, 0)),
    Part.LineSegment(App.Vector(-6, 0, 0), App.Vector(-3, -5, 0)),
    Part.LineSegment(App.Vector(-3, -5, 0), App.Vector(3, -5, 0)),
    Part.LineSegment(App.Vector(-3, 4, 0), App.Vector(3, 4, 0)),
    Part.LineSegment(App.Vector(3, 4, 0), App.Vector(5, 0, 0)),
    Part.LineSegment(App.Vector(5, 0, 0), App.Vector(3, -4, 0)),
    Part.LineSegment(App.Vector(3, -4, 0), App.Vector(-3, -4, 0)),
    Part.LineSegment(App.Vector(-3, -4, 0), App.Vector(-5, 0, 0)),
    Part.LineSegment(App.Vector(-5, 0, 0), App.Vector(-3, 4, 0)),
], False)
sketch13.addConstraint([
    Sketcher.Constraint("Coincident", 0, 2, 1, 1),
    Sketcher.Constraint("Coincident", 1, 2, 2, 1),
    Sketcher.Constraint("Coincident", 2, 2, 3, 1),
    Sketcher.Constraint("Coincident", 3, 2, 4, 1),
    Sketcher.Constraint("Coincident", 4, 2, 5, 1),
    Sketcher.Constraint("Coincident", 5, 2, 0, 1),
    Sketcher.Constraint("Coincident", 6, 2, 7, 1),
    Sketcher.Constraint("Coincident", 7, 2, 8, 1),
    Sketcher.Constraint("Coincident", 8, 2, 9, 1),
    Sketcher.Constraint("Coincident", 9, 2, 10, 1),
    Sketcher.Constraint("Coincident", 10, 2, 11, 1),
    Sketcher.Constraint("Coincident", 11, 2, 6, 1),
    Sketcher.Constraint("Horizontal", 2),
    Sketcher.Constraint("Horizontal", 5),
    Sketcher.Constraint("Horizontal", 6),
    Sketcher.Constraint("Horizontal", 9),
    Sketcher.Constraint("Symmetric", 0, 2, 3, 2, -1, 1),
    Sketcher.Constraint("Symmetric", 1, 2, 4, 2, -1, 1),
    Sketcher.Constraint("Symmetric", 6, 2, 9, 2, -1, 1),
    Sketcher.Constraint("Symmetric", 7, 2, 10, 2, -1, 1),
    Sketcher.Constraint("PointOnObject", 0, 2, -1),
    Sketcher.Constraint("PointOnObject", 7, 2, -1),
    Sketcher.Constraint("Parallel", 0, 3),
    Sketcher.Constraint("Parallel", 4, 7),
    Sketcher.Constraint("Parallel", 3, 8),
    Sketcher.Constraint("Parallel", 8, 11),
    Sketcher.Constraint("Vertical", 2, 2, 4, 2),
    Sketcher.Constraint("Angle", 0, Q("60 deg")),
    Sketcher.Constraint("DistanceY", -1, 1, 1, 2, 5.0),
    Sketcher.Constraint("DistanceY", 8, 2, 6, 2, 9.0),
    Sketcher.Constraint("DistanceX", 1, 2, 7, 2, 2.309401),
    Sketcher.Constraint("DistanceX", 2, 2, 2, 1, 5.773503),
])
pad13 = body13.newObject("PartDesign::Pad", "Pad012")
pad13.Profile = sketch13
pad13.Type = "TwoLengths"
pad13.Length = 25
pad13.Length2 = 10

doc.recompute()
